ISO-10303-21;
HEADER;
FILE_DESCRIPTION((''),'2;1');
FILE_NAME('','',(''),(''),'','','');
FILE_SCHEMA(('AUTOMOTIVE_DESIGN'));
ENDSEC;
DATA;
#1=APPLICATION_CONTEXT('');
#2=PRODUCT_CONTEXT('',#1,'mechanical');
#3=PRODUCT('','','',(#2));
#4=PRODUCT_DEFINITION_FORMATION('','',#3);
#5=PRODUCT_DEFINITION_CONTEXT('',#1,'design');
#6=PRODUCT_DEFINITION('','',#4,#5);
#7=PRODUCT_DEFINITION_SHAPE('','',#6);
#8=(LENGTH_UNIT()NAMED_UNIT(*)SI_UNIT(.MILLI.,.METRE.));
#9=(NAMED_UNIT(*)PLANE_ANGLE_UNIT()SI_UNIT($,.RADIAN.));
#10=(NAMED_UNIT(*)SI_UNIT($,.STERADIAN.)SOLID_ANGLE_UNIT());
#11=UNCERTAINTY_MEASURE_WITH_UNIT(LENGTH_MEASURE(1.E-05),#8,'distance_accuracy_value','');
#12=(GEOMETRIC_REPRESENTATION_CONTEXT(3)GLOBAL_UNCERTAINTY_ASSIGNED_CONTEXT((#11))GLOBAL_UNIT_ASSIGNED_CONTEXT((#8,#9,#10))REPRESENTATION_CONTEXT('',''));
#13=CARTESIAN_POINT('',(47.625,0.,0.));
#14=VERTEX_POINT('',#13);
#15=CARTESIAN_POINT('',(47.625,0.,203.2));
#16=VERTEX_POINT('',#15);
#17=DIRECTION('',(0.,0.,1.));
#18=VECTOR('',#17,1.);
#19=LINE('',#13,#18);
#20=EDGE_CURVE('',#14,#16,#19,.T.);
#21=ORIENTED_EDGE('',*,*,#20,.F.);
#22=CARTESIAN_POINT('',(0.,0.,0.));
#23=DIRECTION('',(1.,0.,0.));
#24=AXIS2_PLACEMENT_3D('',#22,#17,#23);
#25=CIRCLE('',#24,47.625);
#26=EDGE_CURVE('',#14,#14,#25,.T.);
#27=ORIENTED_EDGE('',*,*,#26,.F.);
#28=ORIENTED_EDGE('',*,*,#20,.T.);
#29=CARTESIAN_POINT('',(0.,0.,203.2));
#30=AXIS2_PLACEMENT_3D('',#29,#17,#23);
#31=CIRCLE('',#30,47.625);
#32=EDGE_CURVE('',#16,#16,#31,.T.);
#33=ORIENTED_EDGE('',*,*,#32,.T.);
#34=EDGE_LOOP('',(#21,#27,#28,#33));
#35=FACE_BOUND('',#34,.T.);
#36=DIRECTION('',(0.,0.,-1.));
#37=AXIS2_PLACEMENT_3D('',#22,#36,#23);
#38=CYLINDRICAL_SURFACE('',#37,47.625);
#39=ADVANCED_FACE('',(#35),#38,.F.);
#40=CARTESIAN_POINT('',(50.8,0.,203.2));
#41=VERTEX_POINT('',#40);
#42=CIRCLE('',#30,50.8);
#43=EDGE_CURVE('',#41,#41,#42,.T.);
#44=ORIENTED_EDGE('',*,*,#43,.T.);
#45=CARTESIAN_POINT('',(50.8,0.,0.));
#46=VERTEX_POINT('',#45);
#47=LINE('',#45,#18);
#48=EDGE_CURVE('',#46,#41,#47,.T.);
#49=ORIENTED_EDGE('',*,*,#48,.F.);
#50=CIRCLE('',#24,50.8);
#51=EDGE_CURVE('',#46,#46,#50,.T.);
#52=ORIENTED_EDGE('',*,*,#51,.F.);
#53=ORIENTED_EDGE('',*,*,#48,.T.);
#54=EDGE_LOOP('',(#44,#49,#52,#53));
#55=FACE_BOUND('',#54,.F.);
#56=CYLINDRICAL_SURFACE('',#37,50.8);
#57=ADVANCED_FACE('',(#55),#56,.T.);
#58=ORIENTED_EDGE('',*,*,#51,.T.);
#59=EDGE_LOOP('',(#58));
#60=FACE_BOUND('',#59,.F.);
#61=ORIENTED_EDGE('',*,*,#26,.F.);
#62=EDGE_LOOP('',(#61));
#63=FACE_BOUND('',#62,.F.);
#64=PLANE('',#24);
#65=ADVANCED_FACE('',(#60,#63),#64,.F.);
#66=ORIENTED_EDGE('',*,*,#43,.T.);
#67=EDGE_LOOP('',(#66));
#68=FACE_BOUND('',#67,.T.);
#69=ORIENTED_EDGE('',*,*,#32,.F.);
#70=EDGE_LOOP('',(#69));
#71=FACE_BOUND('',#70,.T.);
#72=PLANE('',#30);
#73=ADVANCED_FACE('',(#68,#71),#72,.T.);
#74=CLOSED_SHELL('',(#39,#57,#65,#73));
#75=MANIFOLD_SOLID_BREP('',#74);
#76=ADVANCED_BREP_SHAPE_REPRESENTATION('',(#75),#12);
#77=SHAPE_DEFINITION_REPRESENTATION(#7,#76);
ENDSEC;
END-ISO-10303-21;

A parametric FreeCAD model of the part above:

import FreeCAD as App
import Part
import Sketcher
from FreeCAD import Vector
Q = App.Units.Quantity

doc = App.newDocument("Part")
body = doc.addObject("PartDesign::Body", "Body")

# Sketch on XY plane
sketch1 = body.newObject("Sketcher::SketchObject", "Sketch")
sketch1.AttachmentSupport = (doc.getObject("XY_Plane"), [""])
sketch1.MapMode = "FlatFace"
sketch1.addGeometry([
    Part.Circle(Vector(0, 0, 0), Vector(0, 0, 1), 50.8),
    Part.Circle(Vector(0, 0, 0), Vector(0, 0, 1), 47.625),
], False)
sketch1.addConstraint([
    Sketcher.Constraint("Coincident", 0, 3, -1, 1),
    Sketcher.Constraint("Coincident", 1, 3, -1, 1),
    Sketcher.Constraint("Diameter", 0, Q("4 in")),
    Sketcher.Constraint("Diameter", 1, Q("3.75 in")),
])
pad1 = body.newObject("PartDesign::Pad", "Pad")
pad1.Profile = sketch1
pad1.Length = Q("8 in")

doc.recompute()
